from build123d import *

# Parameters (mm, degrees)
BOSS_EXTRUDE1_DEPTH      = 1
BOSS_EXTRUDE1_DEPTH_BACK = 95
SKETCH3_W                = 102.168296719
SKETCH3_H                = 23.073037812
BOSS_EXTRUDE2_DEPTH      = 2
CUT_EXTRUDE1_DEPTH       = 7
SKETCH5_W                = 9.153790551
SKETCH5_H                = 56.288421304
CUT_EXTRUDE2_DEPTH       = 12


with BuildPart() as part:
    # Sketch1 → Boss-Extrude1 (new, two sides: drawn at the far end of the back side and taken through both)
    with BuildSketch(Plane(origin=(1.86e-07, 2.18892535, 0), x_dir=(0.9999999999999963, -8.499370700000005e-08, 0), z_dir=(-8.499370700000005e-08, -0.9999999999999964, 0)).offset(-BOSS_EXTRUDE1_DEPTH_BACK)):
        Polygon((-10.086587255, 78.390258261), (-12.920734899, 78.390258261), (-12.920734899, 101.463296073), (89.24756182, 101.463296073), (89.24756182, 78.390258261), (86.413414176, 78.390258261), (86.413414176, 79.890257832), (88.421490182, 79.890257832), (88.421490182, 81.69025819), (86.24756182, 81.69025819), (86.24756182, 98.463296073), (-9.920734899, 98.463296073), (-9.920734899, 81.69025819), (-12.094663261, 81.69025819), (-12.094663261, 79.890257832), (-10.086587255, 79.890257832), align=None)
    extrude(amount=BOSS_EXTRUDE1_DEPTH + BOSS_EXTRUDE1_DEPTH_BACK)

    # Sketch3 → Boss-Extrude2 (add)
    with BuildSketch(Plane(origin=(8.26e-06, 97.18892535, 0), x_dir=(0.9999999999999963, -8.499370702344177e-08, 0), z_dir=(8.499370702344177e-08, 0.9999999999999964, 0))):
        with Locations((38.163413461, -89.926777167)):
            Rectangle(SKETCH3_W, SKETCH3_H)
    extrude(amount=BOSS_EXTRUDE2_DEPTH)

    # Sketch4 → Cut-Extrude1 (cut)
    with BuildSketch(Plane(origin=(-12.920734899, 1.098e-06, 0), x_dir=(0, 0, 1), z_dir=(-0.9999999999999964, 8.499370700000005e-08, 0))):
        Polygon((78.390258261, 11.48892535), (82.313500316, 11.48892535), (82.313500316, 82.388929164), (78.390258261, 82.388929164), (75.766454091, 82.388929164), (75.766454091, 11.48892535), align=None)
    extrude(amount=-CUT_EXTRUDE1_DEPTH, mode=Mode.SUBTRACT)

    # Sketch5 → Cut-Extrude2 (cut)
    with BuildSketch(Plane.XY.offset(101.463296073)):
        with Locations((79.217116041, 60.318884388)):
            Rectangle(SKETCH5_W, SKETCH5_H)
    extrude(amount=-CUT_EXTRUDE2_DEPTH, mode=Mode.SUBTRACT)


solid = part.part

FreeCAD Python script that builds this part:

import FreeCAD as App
import Part
import Sketcher

V = App.Vector


def add_polygon(sketch, points):
    """Adds a closed chain of lines whose ends are joined by coincident constraints."""
    first, n = sketch.GeometryCount, len(points)
    for a, b in zip(points, points[1:] + points[:1]):
        sketch.addGeometry(Part.LineSegment(App.Vector(*a, 0), App.Vector(*b, 0)), False)
    for i in range(n):
        sketch.addConstraint(Sketcher.Constraint("Coincident", first + i, 2, first + (i + 1) % n, 1))

doc = App.newDocument("Part")
body = doc.addObject("PartDesign::Body", "Body")

# Sketch on XZ plane
sketch1 = body.newObject("Sketcher::SketchObject", "Sketch")
sketch1.AttachmentSupport = (doc.getObject("XZ_Plane"), [""])
sketch1.MapMode = "FlatFace"
sketch1.AttachmentOffset = App.Placement(V(0, 0, -2.188925), App.Rotation())
add_polygon(sketch1, [(-12.920735, 78.390258), (-10.086587, 78.390258), (-10.086587, 79.890258), (-12.094663, 79.890258), (-12.094663, 81.690258), (-9.920735, 81.690258), (-9.920735, 98.463296), (86.247562, 98.463296), (86.247562, 81.690258), (88.42149, 81.690258), (88.42149, 79.890258), (86.413414, 79.890258), (86.413414, 78.390258), (89.247562, 78.390258), (89.247562, 101.463296), (-12.920735, 101.463296)])  # lines 0-15
sketch1.addConstraint([
    Sketcher.Constraint("Horizontal", 0),
    Sketcher.Constraint("Vertical", 1),
    Sketcher.Constraint("Horizontal", 2),
    Sketcher.Constraint("Vertical", 3),
    Sketcher.Constraint("Horizontal", 4),
    Sketcher.Constraint("Vertical", 5),
    Sketcher.Constraint("Horizontal", 6),
    Sketcher.Constraint("Vertical", 7),
    Sketcher.Constraint("Horizontal", 8),
    Sketcher.Constraint("Vertical", 9),
    Sketcher.Constraint("Horizontal", 10),
    Sketcher.Constraint("Vertical", 11),
    Sketcher.Constraint("Horizontal", 12),
    Sketcher.Constraint("Vertical", 13),
    Sketcher.Constraint("Horizontal", 14),
    Sketcher.Constraint("Vertical", 15),
    Sketcher.Constraint("Horizontal", 4, 2, 7, 2),
    Sketcher.Constraint("Horizontal", 2, 2, 9, 2),
    Sketcher.Constraint("Horizontal", 0, 2, 11, 2),
    Sketcher.Constraint("Equal", 4, 8),
    Sketcher.Constraint("Equal", 2, 10),
    Sketcher.Constraint("Equal", 0, 12),
    Sketcher.Constraint("DistanceY", 1, 1, 1, 2, 1.5),
    Sketcher.Constraint("DistanceY", 3, 1, 3, 2, 1.8),
    Sketcher.Constraint("DistanceX", 7, 2, 12, 2, 3.0),
    Sketcher.Constraint("DistanceY", 6, 2, 13, 2, 3.0),
    Sketcher.Constraint("DistanceX", 4, 1, 4, 2, 2.173928),
    Sketcher.Constraint("DistanceX", 0, 1, 0, 2, 2.834148),
    Sketcher.Constraint("DistanceX", 6, 1, 6, 2, 96.168297),
    Sketcher.Constraint("DistanceY", 5, 1, 5, 2, 16.773038),
    Sketcher.Constraint("DistanceY", -1, 1, 0, 2, 78.390258),
    Sketcher.Constraint("DistanceX", -1, 1, 8, 2, 88.42149),
])
pad1 = body.newObject("PartDesign::Pad", "Pad")
pad1.Profile = sketch1
pad1.Type = "TwoLengths"
pad1.Length = 1
pad1.Length2 = 95

# Sketch on XZ plane
sketch2 = body.newObject("Sketcher::SketchObject", "Sketch001")
sketch2.AttachmentSupport = (doc.getObject("XZ_Plane"), [""])
sketch2.MapMode = "FlatFace"
sketch2.AttachmentOffset = App.Placement(V(0, 0, -97.188925), App.Rotation())
add_polygon(sketch2, [(-12.920727, 78.390258), (-12.920727, 101.463296), (89.24757, 101.463296), (89.24757, 78.390258)])  # lines 0-3
sketch2.addConstraint([
    Sketcher.Constraint("Vertical", 0),
    Sketcher.Constraint("Horizontal", 1),
    Sketcher.Constraint("Vertical", 2),
    Sketcher.Constraint("Horizontal", 3),
    Sketcher.Constraint("DistanceX", 1, 1, 1, 2, 102.168297),
    Sketcher.Constraint("DistanceY", 0, 1, 0, 2, 23.073038),
    Sketcher.Constraint("DistanceX", -1, 1, 1, 2, 89.24757),
    Sketcher.Constraint("DistanceY", -1, 1, 2, 2, 78.390258),
])
pad2 = body.newObject("PartDesign::Pad", "Pad001")
pad2.Profile = sketch2
pad2.Length = 2
pad2.Reversed = True

# Sketch on YZ plane
sketch3 = body.newObject("Sketcher::SketchObject", "Sketch002")
sketch3.AttachmentSupport = (doc.getObject("YZ_Plane"), [""])
sketch3.MapMode = "FlatFace"
sketch3.AttachmentOffset = App.Placement(V(0, 0, -12.920735), App.Rotation())
add_polygon(sketch3, [(11.488926, 82.3135), (82.38893, 82.3135), (82.38893, 75.766454), (11.488926, 75.766454)])  # lines 0-3
sketch3.addConstraint([
    Sketcher.Constraint("Horizontal", 0),
    Sketcher.Constraint("Vertical", 1),
    Sketcher.Constraint("Horizontal", 2),
    Sketcher.Constraint("Vertical", 3),
    Sketcher.Constraint("DistanceY", -1, 1, 0, 2, 82.3135),
    Sketcher.Constraint("DistanceX", 0, 1, 0, 2, 70.900004),
    Sketcher.Constraint("DistanceY", 1, 2, 1, 1, 6.547046),
    Sketcher.Constraint("DistanceX", -1, 1, 0, 2, 82.38893),
])
pocket1 = body.newObject("PartDesign::Pocket", "Pocket")
pocket1.Profile = sketch3
pocket1.Length = 7
pocket1.Reversed = True

# Sketch on XY plane
sketch4 = body.newObject("Sketcher::SketchObject", "Sketch003")
sketch4.AttachmentSupport = (doc.getObject("XY_Plane"), [""])
sketch4.MapMode = "FlatFace"
sketch4.AttachmentOffset = App.Placement(V(0, 0, 101.463296), App.Rotation())
add_polygon(sketch4, [(74.640221, 88.463095), (74.640221, 32.174674), (83.794011, 32.174674), (83.794011, 88.463095)])  # lines 0-3
sketch4.addConstraint([
    Sketcher.Constraint("Vertical", 0),
    Sketcher.Constraint("Horizontal", 1),
    Sketcher.Constraint("Vertical", 2),
    Sketcher.Constraint("Horizontal", 3),
    Sketcher.Constraint("DistanceX", 1, 1, 1, 2, 9.153791),
    Sketcher.Constraint("DistanceY", 0, 2, 0, 1, 56.288421),
    Sketcher.Constraint("DistanceX", -1, 1, 0, 2, 74.640221),
    Sketcher.Constraint("DistanceY", -1, 1, 0, 2, 32.174674),
])
pocket2 = body.newObject("PartDesign::Pocket", "Pocket001")
pocket2.Profile = sketch4
pocket2.Length = 12

doc.recompute()
